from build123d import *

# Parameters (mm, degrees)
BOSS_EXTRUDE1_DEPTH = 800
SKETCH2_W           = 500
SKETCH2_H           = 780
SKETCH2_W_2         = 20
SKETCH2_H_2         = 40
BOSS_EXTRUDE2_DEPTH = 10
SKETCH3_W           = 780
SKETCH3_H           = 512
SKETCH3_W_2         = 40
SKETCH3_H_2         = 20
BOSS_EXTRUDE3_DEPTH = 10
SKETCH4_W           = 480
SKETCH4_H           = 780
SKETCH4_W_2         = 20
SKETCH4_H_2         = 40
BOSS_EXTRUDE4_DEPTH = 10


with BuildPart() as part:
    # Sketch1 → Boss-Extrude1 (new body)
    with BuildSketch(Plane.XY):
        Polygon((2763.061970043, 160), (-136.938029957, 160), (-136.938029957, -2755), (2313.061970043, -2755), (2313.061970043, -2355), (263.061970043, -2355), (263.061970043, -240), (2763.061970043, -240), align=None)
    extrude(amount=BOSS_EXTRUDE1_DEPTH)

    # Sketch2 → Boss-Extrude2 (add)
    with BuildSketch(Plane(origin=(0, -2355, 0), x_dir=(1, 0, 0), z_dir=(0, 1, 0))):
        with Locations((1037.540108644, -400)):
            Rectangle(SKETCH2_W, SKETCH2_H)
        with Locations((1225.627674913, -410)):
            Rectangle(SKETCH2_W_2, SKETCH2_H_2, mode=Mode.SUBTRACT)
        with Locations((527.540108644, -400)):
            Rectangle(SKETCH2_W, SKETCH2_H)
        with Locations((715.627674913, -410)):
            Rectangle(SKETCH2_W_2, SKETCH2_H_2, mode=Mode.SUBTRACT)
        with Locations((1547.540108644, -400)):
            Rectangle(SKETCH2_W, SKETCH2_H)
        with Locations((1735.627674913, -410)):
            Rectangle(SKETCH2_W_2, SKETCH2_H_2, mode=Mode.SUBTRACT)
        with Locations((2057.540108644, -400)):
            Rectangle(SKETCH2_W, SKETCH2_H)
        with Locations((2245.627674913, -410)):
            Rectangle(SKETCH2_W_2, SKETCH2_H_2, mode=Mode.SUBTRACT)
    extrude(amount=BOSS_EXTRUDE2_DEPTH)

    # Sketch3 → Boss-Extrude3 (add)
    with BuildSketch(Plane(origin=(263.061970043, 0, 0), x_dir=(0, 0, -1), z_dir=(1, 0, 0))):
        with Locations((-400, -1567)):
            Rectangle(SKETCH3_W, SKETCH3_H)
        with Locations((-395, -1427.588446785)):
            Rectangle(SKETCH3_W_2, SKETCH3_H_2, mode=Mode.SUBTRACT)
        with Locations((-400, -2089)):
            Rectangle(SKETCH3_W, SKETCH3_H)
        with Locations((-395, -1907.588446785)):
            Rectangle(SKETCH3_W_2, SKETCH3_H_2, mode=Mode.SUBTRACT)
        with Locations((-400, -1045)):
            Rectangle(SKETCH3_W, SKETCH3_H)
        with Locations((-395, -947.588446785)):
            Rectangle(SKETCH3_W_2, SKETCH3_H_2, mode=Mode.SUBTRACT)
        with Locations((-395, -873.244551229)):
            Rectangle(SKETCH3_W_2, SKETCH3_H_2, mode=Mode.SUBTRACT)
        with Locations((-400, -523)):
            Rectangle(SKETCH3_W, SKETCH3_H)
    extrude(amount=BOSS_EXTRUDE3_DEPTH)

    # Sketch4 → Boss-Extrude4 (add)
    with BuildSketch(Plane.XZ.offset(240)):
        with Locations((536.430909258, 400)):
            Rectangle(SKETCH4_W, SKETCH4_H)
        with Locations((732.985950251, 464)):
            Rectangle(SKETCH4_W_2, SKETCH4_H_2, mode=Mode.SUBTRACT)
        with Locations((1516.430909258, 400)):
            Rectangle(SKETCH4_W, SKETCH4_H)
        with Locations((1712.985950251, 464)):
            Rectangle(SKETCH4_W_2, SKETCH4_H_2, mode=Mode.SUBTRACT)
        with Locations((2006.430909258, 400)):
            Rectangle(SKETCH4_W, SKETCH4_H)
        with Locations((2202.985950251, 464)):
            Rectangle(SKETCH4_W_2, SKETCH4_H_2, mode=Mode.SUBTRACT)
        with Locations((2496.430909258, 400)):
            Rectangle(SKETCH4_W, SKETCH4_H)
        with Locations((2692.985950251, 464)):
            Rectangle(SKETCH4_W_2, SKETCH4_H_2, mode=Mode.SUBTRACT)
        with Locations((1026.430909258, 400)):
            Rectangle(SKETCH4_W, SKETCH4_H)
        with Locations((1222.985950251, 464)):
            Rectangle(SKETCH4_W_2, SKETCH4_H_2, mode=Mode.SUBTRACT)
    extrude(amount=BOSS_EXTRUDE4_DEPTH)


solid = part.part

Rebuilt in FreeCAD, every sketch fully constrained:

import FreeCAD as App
import Part
import Sketcher
Q = App.Units.Quantity

doc = App.newDocument("Part")
params = doc.addObject("Spreadsheet::Sheet", "Params")
for row, (alias, value) in enumerate([
    ("sketch1_width", "2900 mm"),
    ("sketch1_width2", "2450 mm"),
    ("sketch1_width3", "2050 mm"),
    ("sketch1_height", "2915 mm"),
    ("sketch1_height2", "400 mm"),
    ("pad1_length", "800 mm"),
    ("sketch2_width", "500 mm"),
    ("sketch2_width2", "20 mm"),
    ("sketch2_height", "780 mm"),
    ("sketch2_height2", "40 mm"),
    ("pad2_length", "10 mm"),
    ("sketch3_width", "512 mm"),
    ("sketch3_width2", "20 mm"),
    ("sketch3_height", "780 mm"),
    ("sketch3_height2", "40 mm"),
    ("pad3_length", "10 mm"),
    ("sketch4_width", "480 mm"),
    ("sketch4_width2", "20 mm"),
    ("sketch4_height", "780 mm"),
    ("sketch4_height2", "40 mm"),
    ("pad4_length", "10 mm"),
], start=1):
    params.set(f"A{row}", alias)
    params.set(f"B{row}", "=" + value)
    params.setAlias(f"B{row}", alias)

body = doc.addObject("PartDesign::Body", "Body")

# Sketch on XY plane
sketch1 = body.newObject("Sketcher::SketchObject", "Sketch")
sketch1.AttachmentSupport = (doc.getObject("XY_Plane"), [""])
sketch1.MapMode = "FlatFace"
sketch1.addGeometry(Part.LineSegment(App.Vector(2763, 160, 0), App.Vector(-137, 160, 0)), False)
sketch1.addGeometry(Part.LineSegment(App.Vector(-137, 160, 0), App.Vector(-137, -2755, 0)), False)
sketch1.addGeometry(Part.LineSegment(App.Vector(-137, -2755, 0), App.Vector(2313, -2755, 0)), False)
sketch1.addGeometry(Part.LineSegment(App.Vector(2313, -2755, 0), App.Vector(2313, -2355, 0)), False)
sketch1.addGeometry(Part.LineSegment(App.Vector(2313, -2355, 0), App.Vector(263, -2355, 0)), False)
sketch1.addGeometry(Part.LineSegment(App.Vector(263, -2355, 0), App.Vector(263, -240, 0)), False)
sketch1.addGeometry(Part.LineSegment(App.Vector(263, -240, 0), App.Vector(2763, -240, 0)), False)
sketch1.addGeometry(Part.LineSegment(App.Vector(2763, -240, 0), App.Vector(2763, 160, 0)), False)
sketch1.addConstraint(Sketcher.Constraint("Coincident", 0, 2, 1, 1))
sketch1.addConstraint(Sketcher.Constraint("Coincident", 1, 2, 2, 1))
sketch1.addConstraint(Sketcher.Constraint("Coincident", 2, 2, 3, 1))
sketch1.addConstraint(Sketcher.Constraint("Coincident", 3, 2, 4, 1))
sketch1.addConstraint(Sketcher.Constraint("Coincident", 4, 2, 5, 1))
sketch1.addConstraint(Sketcher.Constraint("Coincident", 5, 2, 6, 1))
sketch1.addConstraint(Sketcher.Constraint("Coincident", 6, 2, 7, 1))
sketch1.addConstraint(Sketcher.Constraint("Coincident", 7, 2, 0, 1))
sketch1.addConstraint(Sketcher.Constraint("Horizontal", 0))
sketch1.addConstraint(Sketcher.Constraint("Vertical", 1))
sketch1.addConstraint(Sketcher.Constraint("Horizontal", 2))
sketch1.addConstraint(Sketcher.Constraint("Vertical", 3))
sketch1.addConstraint(Sketcher.Constraint("Horizontal", 4))
sketch1.addConstraint(Sketcher.Constraint("Vertical", 5))
sketch1.addConstraint(Sketcher.Constraint("Horizontal", 6))
sketch1.addConstraint(Sketcher.Constraint("Vertical", 7))
sketch1.addConstraint(Sketcher.Constraint("Equal", 3, 7))
sketch1.addConstraint(Sketcher.Constraint("DistanceX", 0, 2, 0, 1, Q("2900 mm")))
sketch1.addConstraint(Sketcher.Constraint("DistanceX", 2, 1, 2, 2, Q("2450 mm")))
sketch1.addConstraint(Sketcher.Constraint("DistanceX", 4, 2, 4, 1, Q("2050 mm")))
sketch1.addConstraint(Sketcher.Constraint("DistanceY", 1, 2, 1, 1, Q("2915 mm")))
sketch1.addConstraint(Sketcher.Constraint("DistanceY", 3, 1, 3, 2, Q("400 mm")))
sketch1.addConstraint(Sketcher.Constraint("DistanceY", -1, 1, 0, 2, Q("160 mm")))
sketch1.addConstraint(Sketcher.Constraint("DistanceX", 0, 2, -1, 1, Q("136.93803 mm")))
sketch1.setExpression("Constraints[17]", "Params.sketch1_width")
sketch1.setExpression("Constraints[18]", "Params.sketch1_width2")
sketch1.setExpression("Constraints[19]", "Params.sketch1_width3")
sketch1.setExpression("Constraints[20]", "Params.sketch1_height")
sketch1.setExpression("Constraints[21]", "Params.sketch1_height2")
pad1 = body.newObject("PartDesign::Pad", "Pad")
pad1.Profile = sketch1
pad1.setExpression("Length", "Params.pad1_length")

# Sketch on XZ plane
sketch2 = body.newObject("Sketcher::SketchObject", "Sketch001")
sketch2.AttachmentSupport = (doc.getObject("XZ_Plane"), [""])
sketch2.MapMode = "FlatFace"
sketch2.AttachmentOffset = App.Placement(App.Vector(0, 0, 2355), App.Rotation())
sketch2.addGeometry(Part.LineSegment(App.Vector(788, 10, 0), App.Vector(788, 790, 0)), False)
sketch2.addGeometry(Part.LineSegment(App.Vector(788, 790, 0), App.Vector(1288, 790, 0)), False)
sketch2.addGeometry(Part.LineSegment(App.Vector(1288, 790, 0), App.Vector(1288, 10, 0)), False)
sketch2.addGeometry(Part.LineSegment(App.Vector(1288, 10, 0), App.Vector(788, 10, 0)), False)
sketch2.addGeometry(Part.LineSegment(App.Vector(1236, 430, 0), App.Vector(1216, 430, 0)), False)
sketch2.addGeometry(Part.LineSegment(App.Vector(1216, 430, 0), App.Vector(1216, 390, 0)), False)
sketch2.addGeometry(Part.LineSegment(App.Vector(1216, 390, 0), App.Vector(1236, 390, 0)), False)
sketch2.addGeometry(Part.LineSegment(App.Vector(1236, 390, 0), App.Vector(1236, 430, 0)), False)
sketch2.addGeometry(Part.LineSegment(App.Vector(278, 10, 0), App.Vector(278, 790, 0)), False)
sketch2.addGeometry(Part.LineSegment(App.Vector(278, 790, 0), App.Vector(778, 790, 0)), False)
sketch2.addGeometry(Part.LineSegment(App.Vector(778, 790, 0), App.Vector(778, 10, 0)), False)
sketch2.addGeometry(Part.LineSegment(App.Vector(778, 10, 0), App.Vector(278, 10, 0)), False)
sketch2.addGeometry(Part.LineSegment(App.Vector(726, 430, 0), App.Vector(706, 430, 0)), False)
sketch2.addGeometry(Part.LineSegment(App.Vector(706, 430, 0), App.Vector(706, 390, 0)), False)
sketch2.addGeometry(Part.LineSegment(App.Vector(706, 390, 0), App.Vector(726, 390, 0)), False)
sketch2.addGeometry(Part.LineSegment(App.Vector(726, 390, 0), App.Vector(726, 430, 0)), False)
sketch2.addGeometry(Part.LineSegment(App.Vector(1298, 10, 0), App.Vector(1298, 790, 0)), False)
sketch2.addGeometry(Part.LineSegment(App.Vector(1298, 790, 0), App.Vector(1798, 790, 0)), False)
sketch2.addGeometry(Part.LineSegment(App.Vector(1798, 790, 0), App.Vector(1798, 10, 0)), False)
sketch2.addGeometry(Part.LineSegment(App.Vector(1798, 10, 0), App.Vector(1298, 10, 0)), False)
sketch2.addGeometry(Part.LineSegment(App.Vector(1746, 430, 0), App.Vector(1726, 430, 0)), False)
sketch2.addGeometry(Part.LineSegment(App.Vector(1726, 430, 0), App.Vector(1726, 390, 0)), False)
sketch2.addGeometry(Part.LineSegment(App.Vector(1726, 390, 0), App.Vector(1746, 390, 0)), False)
sketch2.addGeometry(Part.LineSegment(App.Vector(1746, 390, 0), App.Vector(1746, 430, 0)), False)
sketch2.addGeometry(Part.LineSegment(App.Vector(1808, 10, 0), App.Vector(1808, 790, 0)), False)
sketch2.addGeometry(Part.LineSegment(App.Vector(1808, 790, 0), App.Vector(2308, 790, 0)), False)
sketch2.addGeometry(Part.LineSegment(App.Vector(2308, 790, 0), App.Vector(2308, 10, 0)), False)
sketch2.addGeometry(Part.LineSegment(App.Vector(2308, 10, 0), App.Vector(1808, 10, 0)), False)
sketch2.addGeometry(Part.LineSegment(App.Vector(2256, 430, 0), App.Vector(2236, 430, 0)), False)
sketch2.addGeometry(Part.LineSegment(App.Vector(2236, 430, 0), App.Vector(2236, 390, 0)), False)
sketch2.addGeometry(Part.LineSegment(App.Vector(2236, 390, 0), App.Vector(2256, 390, 0)), False)
sketch2.addGeometry(Part.LineSegment(App.Vector(2256, 390, 0), App.Vector(2256, 430, 0)), False)
sketch2.addConstraint(Sketcher.Constraint("Coincident", 0, 2, 1, 1))
sketch2.addConstraint(Sketcher.Constraint("Coincident", 1, 2, 2, 1))
sketch2.addConstraint(Sketcher.Constraint("Coincident", 2, 2, 3, 1))
sketch2.addConstraint(Sketcher.Constraint("Coincident", 3, 2, 0, 1))
sketch2.addConstraint(Sketcher.Constraint("Coincident", 4, 2, 5, 1))
sketch2.addConstraint(Sketcher.Constraint("Coincident", 5, 2, 6, 1))
sketch2.addConstraint(Sketcher.Constraint("Coincident", 6, 2, 7, 1))
sketch2.addConstraint(Sketcher.Constraint("Coincident", 7, 2, 4, 1))
sketch2.addConstraint(Sketcher.Constraint("Coincident", 8, 2, 9, 1))
sketch2.addConstraint(Sketcher.Constraint("Coincident", 9, 2, 10, 1))
sketch2.addConstraint(Sketcher.Constraint("Coincident", 10, 2, 11, 1))
sketch2.addConstraint(Sketcher.Constraint("Coincident", 11, 2, 8, 1))
sketch2.addConstraint(Sketcher.Constraint("Coincident", 12, 2, 13, 1))
sketch2.addConstraint(Sketcher.Constraint("Coincident", 13, 2, 14, 1))
sketch2.addConstraint(Sketcher.Constraint("Coincident", 14, 2, 15, 1))
sketch2.addConstraint(Sketcher.Constraint("Coincident", 15, 2, 12, 1))
sketch2.addConstraint(Sketcher.Constraint("Coincident", 16, 2, 17, 1))
sketch2.addConstraint(Sketcher.Constraint("Coincident", 17, 2, 18, 1))
sketch2.addConstraint(Sketcher.Constraint("Coincident", 18, 2, 19, 1))
sketch2.addConstraint(Sketcher.Constraint("Coincident", 19, 2, 16, 1))
sketch2.addConstraint(Sketcher.Constraint("Coincident", 20, 2, 21, 1))
sketch2.addConstraint(Sketcher.Constraint("Coincident", 21, 2, 22, 1))
sketch2.addConstraint(Sketcher.Constraint("Coincident", 22, 2, 23, 1))
sketch2.addConstraint(Sketcher.Constraint("Coincident", 23, 2, 20, 1))
sketch2.addConstraint(Sketcher.Constraint("Coincident", 24, 2, 25, 1))
sketch2.addConstraint(Sketcher.Constraint("Coincident", 25, 2, 26, 1))
sketch2.addConstraint(Sketcher.Constraint("Coincident", 26, 2, 27, 1))
sketch2.addConstraint(Sketcher.Constraint("Coincident", 27, 2, 24, 1))
sketch2.addConstraint(Sketcher.Constraint("Coincident", 28, 2, 29, 1))
sketch2.addConstraint(Sketcher.Constraint("Coincident", 29, 2, 30, 1))
sketch2.addConstraint(Sketcher.Constraint("Coincident", 30, 2, 31, 1))
sketch2.addConstraint(Sketcher.Constraint("Coincident", 31, 2, 28, 1))
sketch2.addConstraint(Sketcher.Constraint("Vertical", 0))
sketch2.addConstraint(Sketcher.Constraint("Horizontal", 1))
sketch2.addConstraint(Sketcher.Constraint("Vertical", 2))
sketch2.addConstraint(Sketcher.Constraint("Horizontal", 3))
sketch2.addConstraint(Sketcher.Constraint("Horizontal", 4))
sketch2.addConstraint(Sketcher.Constraint("Vertical", 5))
sketch2.addConstraint(Sketcher.Constraint("Horizontal", 6))
sketch2.addConstraint(Sketcher.Constraint("Vertical", 7))
sketch2.addConstraint(Sketcher.Constraint("Vertical", 8))
sketch2.addConstraint(Sketcher.Constraint("Horizontal", 9))
sketch2.addConstraint(Sketcher.Constraint("Vertical", 10))
sketch2.addConstraint(Sketcher.Constraint("Horizontal", 11))
sketch2.addConstraint(Sketcher.Constraint("Horizontal", 12))
sketch2.addConstraint(Sketcher.Constraint("Vertical", 13))
sketch2.addConstraint(Sketcher.Constraint("Horizontal", 14))
sketch2.addConstraint(Sketcher.Constraint("Vertical", 15))
sketch2.addConstraint(Sketcher.Constraint("Vertical", 16))
sketch2.addConstraint(Sketcher.Constraint("Horizontal", 17))
sketch2.addConstraint(Sketcher.Constraint("Vertical", 18))
sketch2.addConstraint(Sketcher.Constraint("Horizontal", 19))
sketch2.addConstraint(Sketcher.Constraint("Horizontal", 20))
sketch2.addConstraint(Sketcher.Constraint("Vertical", 21))
sketch2.addConstraint(Sketcher.Constraint("Horizontal", 22))
sketch2.addConstraint(Sketcher.Constraint("Vertical", 23))
sketch2.addConstraint(Sketcher.Constraint("Vertical", 24))
sketch2.addConstraint(Sketcher.Constraint("Horizontal", 25))
sketch2.addConstraint(Sketcher.Constraint("Vertical", 26))
sketch2.addConstraint(Sketcher.Constraint("Horizontal", 27))
sketch2.addConstraint(Sketcher.Constraint("Horizontal", 28))
sketch2.addConstraint(Sketcher.Constraint("Vertical", 29))
sketch2.addConstraint(Sketcher.Constraint("Horizontal", 30))
sketch2.addConstraint(Sketcher.Constraint("Vertical", 31))
sketch2.addConstraint(Sketcher.Constraint("Horizontal", 1, 2, 8, 2))
sketch2.addConstraint(Sketcher.Constraint("Horizontal", 3, 2, 10, 2))
sketch2.addConstraint(Sketcher.Constraint("Horizontal", 7, 2, 12, 2))
sketch2.addConstraint(Sketcher.Constraint("Horizontal", 6, 2, 13, 2))
sketch2.addConstraint(Sketcher.Constraint("Horizontal", 9, 2, 16, 2))
sketch2.addConstraint(Sketcher.Constraint("Horizontal", 11, 2, 18, 2))
sketch2.addConstraint(Sketcher.Constraint("Horizontal", 15, 2, 20, 2))
sketch2.addConstraint(Sketcher.Constraint("Horizontal", 14, 2, 21, 2))
sketch2.addConstraint(Sketcher.Constraint("Horizontal", 17, 2, 24, 2))
sketch2.addConstraint(Sketcher.Constraint("Horizontal", 19, 2, 26, 2))
sketch2.addConstraint(Sketcher.Constraint("Horizontal", 23, 2, 28, 2))
sketch2.addConstraint(Sketcher.Constraint("Horizontal", 22, 2, 29, 2))
sketch2.addConstraint(Sketcher.Constraint("Equal", 3, 9))
sketch2.addConstraint(Sketcher.Constraint("Equal", 6, 12))
sketch2.addConstraint(Sketcher.Constraint("Equal", 11, 17))
sketch2.addConstraint(Sketcher.Constraint("Equal", 14, 20))
sketch2.addConstraint(Sketcher.Constraint("Equal", 19, 25))
sketch2.addConstraint(Sketcher.Constraint("Equal", 22, 28))
sketch2.addConstraint(Sketcher.Constraint("DistanceX", 1, 1, 1, 2, Q("500 mm")))
sketch2.addConstraint(Sketcher.Constraint("DistanceX", 4, 2, 4, 1, Q("20 mm")))
sketch2.addConstraint(Sketcher.Constraint("DistanceY", 0, 1, 0, 2, Q("780 mm")))
sketch2.addConstraint(Sketcher.Constraint("DistanceY", 5, 2, 5, 1, Q("40 mm")))
sketch2.addConstraint(Sketcher.Constraint("DistanceY", -1, 1, 0, 2, Q("790 mm")))
sketch2.addConstraint(Sketcher.Constraint("DistanceY", -1, 1, 4, 2, Q("430 mm")))
sketch2.addConstraint(Sketcher.Constraint("DistanceX", 8, 2, 0, 2, Q("510 mm")))
sketch2.addConstraint(Sketcher.Constraint("DistanceX", 12, 2, 4, 2, Q("510 mm")))
sketch2.addConstraint(Sketcher.Constraint("DistanceX", 1, 2, 16, 2, Q("10 mm")))
sketch2.addConstraint(Sketcher.Constraint("DistanceX", 7, 2, 20, 2, Q("490 mm")))
sketch2.addConstraint(Sketcher.Constraint("DistanceX", 17, 2, 24, 2, Q("10 mm")))
sketch2.addConstraint(Sketcher.Constraint("DistanceX", 23, 2, 28, 2, Q("490 mm")))
sketch2.addConstraint(Sketcher.Constraint("DistanceX", -1, 1, 0, 2, Q("787.540109 mm")))
sketch2.addConstraint(Sketcher.Constraint("DistanceX", -1, 1, 4, 2, Q("1215.627675 mm")))
sketch2.setExpression("Constraints[82]", "Params.sketch2_width")
sketch2.setExpression("Constraints[83]", "Params.sketch2_width2")
sketch2.setExpression("Constraints[84]", "Params.sketch2_height")
sketch2.setExpression("Constraints[85]", "Params.sketch2_height2")
pad2 = body.newObject("PartDesign::Pad", "Pad001")
pad2.Profile = sketch2
pad2.setExpression("Length", "Params.pad2_length")
pad2.Reversed = True

# Sketch on YZ plane
sketch3 = body.newObject("Sketcher::SketchObject", "Sketch002")
sketch3.AttachmentSupport = (doc.getObject("YZ_Plane"), [""])
sketch3.MapMode = "FlatFace"
sketch3.AttachmentOffset = App.Placement(App.Vector(0, 0, 263.06197), App.Rotation())
sketch3.addGeometry(Part.LineSegment(App.Vector(-1311, 790, 0), App.Vector(-1823, 790, 0)), False)
sketch3.addGeometry(Part.LineSegment(App.Vector(-1823, 790, 0), App.Vector(-1823, 10, 0)), False)
sketch3.addGeometry(Part.LineSegment(App.Vector(-1823, 10, 0), App.Vector(-1311, 10, 0)), False)
sketch3.addGeometry(Part.LineSegment(App.Vector(-1311, 10, 0), App.Vector(-1311, 790, 0)), False)
sketch3.addGeometry(Part.LineSegment(App.Vector(-1438, 375, 0), App.Vector(-1438, 415, 0)), False)
sketch3.addGeometry(Part.LineSegment(App.Vector(-1438, 415, 0), App.Vector(-1418, 415, 0)), False)
sketch3.addGeometry(Part.LineSegment(App.Vector(-1418, 415, 0), App.Vector(-1418, 375, 0)), False)
sketch3.addGeometry(Part.LineSegment(App.Vector(-1418, 375, 0), App.Vector(-1438, 375, 0)), False)
sketch3.addGeometry(Part.LineSegment(App.Vector(-1833, 790, 0), App.Vector(-2345, 790, 0)), False)
sketch3.addGeometry(Part.LineSegment(App.Vector(-2345, 790, 0), App.Vector(-2345, 10, 0)), False)
sketch3.addGeometry(Part.LineSegment(App.Vector(-2345, 10, 0), App.Vector(-1833, 10, 0)), False)
sketch3.addGeometry(Part.LineSegment(App.Vector(-1833, 10, 0), App.Vector(-1833, 790, 0)), False)
sketch3.addGeometry(Part.LineSegment(App.Vector(-1918, 375, 0), App.Vector(-1918, 415, 0)), False)
sketch3.addGeometry(Part.LineSegment(App.Vector(-1918, 415, 0), App.Vector(-1898, 415, 0)), False)
sketch3.addGeometry(Part.LineSegment(App.Vector(-1898, 415, 0), App.Vector(-1898, 375, 0)), False)
sketch3.addGeometry(Part.LineSegment(App.Vector(-1898, 375, 0), App.Vector(-1918, 375, 0)), False)
sketch3.addGeometry(Part.LineSegment(App.Vector(-789, 790, 0), App.Vector(-1301, 790, 0)), False)
sketch3.addGeometry(Part.LineSegment(App.Vector(-1301, 790, 0), App.Vector(-1301, 10, 0)), False)
sketch3.addGeometry(Part.LineSegment(App.Vector(-1301, 10, 0), App.Vector(-789, 10, 0)), False)
sketch3.addGeometry(Part.LineSegment(App.Vector(-789, 10, 0), App.Vector(-789, 790, 0)), False)
sketch3.addGeometry(Part.LineSegment(App.Vector(-958, 375, 0), App.Vector(-958, 415, 0)), False)
sketch3.addGeometry(Part.LineSegment(App.Vector(-958, 415, 0), App.Vector(-938, 415, 0)), False)
sketch3.addGeometry(Part.LineSegment(App.Vector(-938, 415, 0), App.Vector(-938, 375, 0)), False)
sketch3.addGeometry(Part.LineSegment(App.Vector(-938, 375, 0), App.Vector(-958, 375, 0)), False)
sketch3.addGeometry(Part.LineSegment(App.Vector(-883, 375, 0), App.Vector(-883, 415, 0)), False)
sketch3.addGeometry(Part.LineSegment(App.Vector(-883, 415, 0), App.Vector(-863, 415, 0)), False)
sketch3.addGeometry(Part.LineSegment(App.Vector(-863, 415, 0), App.Vector(-863, 375, 0)), False)
sketch3.addGeometry(Part.LineSegment(App.Vector(-863, 375, 0), App.Vector(-883, 375, 0)), False)
sketch3.addGeometry(Part.LineSegment(App.Vector(-267, 790, 0), App.Vector(-779, 790, 0)), False)
sketch3.addGeometry(Part.LineSegment(App.Vector(-779, 790, 0), App.Vector(-779, 10, 0)), False)
sketch3.addGeometry(Part.LineSegment(App.Vector(-779, 10, 0), App.Vector(-267, 10, 0)), False)
sketch3.addGeometry(Part.LineSegment(App.Vector(-267, 10, 0), App.Vector(-267, 790, 0)), False)
sketch3.addConstraint(Sketcher.Constraint("Coincident", 0, 2, 1, 1))
sketch3.addConstraint(Sketcher.Constraint("Coincident", 1, 2, 2, 1))
sketch3.addConstraint(Sketcher.Constraint("Coincident", 2, 2, 3, 1))
sketch3.addConstraint(Sketcher.Constraint("Coincident", 3, 2, 0, 1))
sketch3.addConstraint(Sketcher.Constraint("Coincident", 4, 2, 5, 1))
sketch3.addConstraint(Sketcher.Constraint("Coincident", 5, 2, 6, 1))
sketch3.addConstraint(Sketcher.Constraint("Coincident", 6, 2, 7, 1))
sketch3.addConstraint(Sketcher.Constraint("Coincident", 7, 2, 4, 1))
sketch3.addConstraint(Sketcher.Constraint("Coincident", 8, 2, 9, 1))
sketch3.addConstraint(Sketcher.Constraint("Coincident", 9, 2, 10, 1))
sketch3.addConstraint(Sketcher.Constraint("Coincident", 10, 2, 11, 1))
sketch3.addConstraint(Sketcher.Constraint("Coincident", 11, 2, 8, 1))
sketch3.addConstraint(Sketcher.Constraint("Coincident", 12, 2, 13, 1))
sketch3.addConstraint(Sketcher.Constraint("Coincident", 13, 2, 14, 1))
sketch3.addConstraint(Sketcher.Constraint("Coincident", 14, 2, 15, 1))
sketch3.addConstraint(Sketcher.Constraint("Coincident", 15, 2, 12, 1))
sketch3.addConstraint(Sketcher.Constraint("Coincident", 16, 2, 17, 1))
sketch3.addConstraint(Sketcher.Constraint("Coincident", 17, 2, 18, 1))
sketch3.addConstraint(Sketcher.Constraint("Coincident", 18, 2, 19, 1))
sketch3.addConstraint(Sketcher.Constraint("Coincident", 19, 2, 16, 1))
sketch3.addConstraint(Sketcher.Constraint("Coincident", 20, 2, 21, 1))
sketch3.addConstraint(Sketcher.Constraint("Coincident", 21, 2, 22, 1))
sketch3.addConstraint(Sketcher.Constraint("Coincident", 22, 2, 23, 1))
sketch3.addConstraint(Sketcher.Constraint("Coincident", 23, 2, 20, 1))
sketch3.addConstraint(Sketcher.Constraint("Coincident", 24, 2, 25, 1))
sketch3.addConstraint(Sketcher.Constraint("Coincident", 25, 2, 26, 1))
sketch3.addConstraint(Sketcher.Constraint("Coincident", 26, 2, 27, 1))
sketch3.addConstraint(Sketcher.Constraint("Coincident", 27, 2, 24, 1))
sketch3.addConstraint(Sketcher.Constraint("Coincident", 28, 2, 29, 1))
sketch3.addConstraint(Sketcher.Constraint("Coincident", 29, 2, 30, 1))
sketch3.addConstraint(Sketcher.Constraint("Coincident", 30, 2, 31, 1))
sketch3.addConstraint(Sketcher.Constraint("Coincident", 31, 2, 28, 1))
sketch3.addConstraint(Sketcher.Constraint("Horizontal", 0))
sketch3.addConstraint(Sketcher.Constraint("Vertical", 1))
sketch3.addConstraint(Sketcher.Constraint("Horizontal", 2))
sketch3.addConstraint(Sketcher.Constraint("Vertical", 3))
sketch3.addConstraint(Sketcher.Constraint("Vertical", 4))
sketch3.addConstraint(Sketcher.Constraint("Horizontal", 5))
sketch3.addConstraint(Sketcher.Constraint("Vertical", 6))
sketch3.addConstraint(Sketcher.Constraint("Horizontal", 7))
sketch3.addConstraint(Sketcher.Constraint("Horizontal", 8))
sketch3.addConstraint(Sketcher.Constraint("Vertical", 9))
sketch3.addConstraint(Sketcher.Constraint("Horizontal", 10))
sketch3.addConstraint(Sketcher.Constraint("Vertical", 11))
sketch3.addConstraint(Sketcher.Constraint("Vertical", 12))
sketch3.addConstraint(Sketcher.Constraint("Horizontal", 13))
sketch3.addConstraint(Sketcher.Constraint("Vertical", 14))
sketch3.addConstraint(Sketcher.Constraint("Horizontal", 15))
sketch3.addConstraint(Sketcher.Constraint("Horizontal", 16))
sketch3.addConstraint(Sketcher.Constraint("Vertical", 17))
sketch3.addConstraint(Sketcher.Constraint("Horizontal", 18))
sketch3.addConstraint(Sketcher.Constraint("Vertical", 19))
sketch3.addConstraint(Sketcher.Constraint("Vertical", 20))
sketch3.addConstraint(Sketcher.Constraint("Horizontal", 21))
sketch3.addConstraint(Sketcher.Constraint("Vertical", 22))
sketch3.addConstraint(Sketcher.Constraint("Horizontal", 23))
sketch3.addConstraint(Sketcher.Constraint("Vertical", 24))
sketch3.addConstraint(Sketcher.Constraint("Horizontal", 25))
sketch3.addConstraint(Sketcher.Constraint("Vertical", 26))
sketch3.addConstraint(Sketcher.Constraint("Horizontal", 27))
sketch3.addConstraint(Sketcher.Constraint("Horizontal", 28))
sketch3.addConstraint(Sketcher.Constraint("Vertical", 29))
sketch3.addConstraint(Sketcher.Constraint("Horizontal", 30))
sketch3.addConstraint(Sketcher.Constraint("Vertical", 31))
sketch3.addConstraint(Sketcher.Constraint("Horizontal", 3, 2, 8, 2))
sketch3.addConstraint(Sketcher.Constraint("Horizontal", 2, 2, 9, 2))
sketch3.addConstraint(Sketcher.Constraint("Horizontal", 5, 2, 12, 2))
sketch3.addConstraint(Sketcher.Constraint("Horizontal", 7, 2, 14, 2))
sketch3.addConstraint(Sketcher.Constraint("Horizontal", 11, 2, 16, 2))
sketch3.addConstraint(Sketcher.Constraint("Horizontal", 10, 2, 17, 2))
sketch3.addConstraint(Sketcher.Constraint("Horizontal", 13, 2, 20, 2))
sketch3.addConstraint(Sketcher.Constraint("Horizontal", 15, 2, 22, 2))
sketch3.addConstraint(Sketcher.Constraint("Horizontal", 21, 2, 24, 2))
sketch3.addConstraint(Sketcher.Constraint("Horizontal", 23, 2, 26, 2))
sketch3.addConstraint(Sketcher.Constraint("Horizontal", 19, 2, 28, 2))
sketch3.addConstraint(Sketcher.Constraint("Horizontal", 18, 2, 29, 2))
sketch3.addConstraint(Sketcher.Constraint("Equal", 2, 8))
sketch3.addConstraint(Sketcher.Constraint("Equal", 7, 13))
sketch3.addConstraint(Sketcher.Constraint("Equal", 10, 16))
sketch3.addConstraint(Sketcher.Constraint("Equal", 15, 21))
sketch3.addConstraint(Sketcher.Constraint("Equal", 23, 25))
sketch3.addConstraint(Sketcher.Constraint("Equal", 18, 28))
sketch3.addConstraint(Sketcher.Constraint("DistanceX", 0, 2, 0, 1, Q("512 mm")))
sketch3.addConstraint(Sketcher.Constraint("DistanceX", 5, 1, 5, 2, Q("20 mm")))
sketch3.addConstraint(Sketcher.Constraint("DistanceY", 1, 2, 1, 1, Q("780 mm")))
sketch3.addConstraint(Sketcher.Constraint("DistanceY", 4, 1, 4, 2, Q("40 mm")))
sketch3.addConstraint(Sketcher.Constraint("DistanceX", 0, 2, -1, 1, Q("1823 mm")))
sketch3.addConstraint(Sketcher.Constraint("DistanceY", -1, 1, 0, 2, Q("790 mm")))
sketch3.addConstraint(Sketcher.Constraint("DistanceY", -1, 1, 4, 2, Q("415 mm")))
sketch3.addConstraint(Sketcher.Constraint("DistanceX", 8, 2, -1, 1, Q("2345 mm")))
sketch3.addConstraint(Sketcher.Constraint("DistanceX", 16, 2, -1, 1, Q("1301 mm")))
sketch3.addConstraint(Sketcher.Constraint("DistanceX", 28, 2, -1, 1, Q("779 mm")))
sketch3.addConstraint(Sketcher.Constraint("DistanceX", 12, 2, 4, 2, Q("480 mm")))
sketch3.addConstraint(Sketcher.Constraint("DistanceX", 5, 2, 20, 2, Q("460 mm")))
sketch3.addConstraint(Sketcher.Constraint("DistanceX", 24, 2, -1, 1, Q("883.244551 mm")))
sketch3.addConstraint(Sketcher.Constraint("DistanceX", 4, 2, -1, 1, Q("1437.588447 mm")))
sketch3.setExpression("Constraints[82]", "Params.sketch3_width")
sketch3.setExpression("Constraints[83]", "Params.sketch3_width2")
sketch3.setExpression("Constraints[84]", "Params.sketch3_height")
sketch3.setExpression("Constraints[85]", "Params.sketch3_height2")
pad3 = body.newObject("PartDesign::Pad", "Pad002")
pad3.Profile = sketch3
pad3.setExpression("Length", "Params.pad3_length")

# Sketch on XZ plane
sketch4 = body.newObject("Sketcher::SketchObject", "Sketch003")
sketch4.AttachmentSupport = (doc.getObject("XZ_Plane"), [""])
sketch4.MapMode = "FlatFace"
sketch4.AttachmentOffset = App.Placement(App.Vector(0, 0, 240), App.Rotation())
sketch4.addGeometry(Part.LineSegment(App.Vector(296, 790, 0), App.Vector(296, 10, 0)), False)
sketch4.addGeometry(Part.LineSegment(App.Vector(296, 10, 0), App.Vector(776, 10, 0)), False)
sketch4.addGeometry(Part.LineSegment(App.Vector(776, 10, 0), App.Vector(776, 790, 0)), False)
sketch4.addGeometry(Part.LineSegment(App.Vector(776, 790, 0), App.Vector(296, 790, 0)), False)
sketch4.addGeometry(Part.LineSegment(App.Vector(743, 444, 0), App.Vector(723, 444, 0)), False)
sketch4.addGeometry(Part.LineSegment(App.Vector(723, 444, 0), App.Vector(723, 484, 0)), False)
sketch4.addGeometry(Part.LineSegment(App.Vector(723, 484, 0), App.Vector(743, 484, 0)), False)
sketch4.addGeometry(Part.LineSegment(App.Vector(743, 484, 0), App.Vector(743, 444, 0)), False)
sketch4.addGeometry(Part.LineSegment(App.Vector(1276, 790, 0), App.Vector(1276, 10, 0)), False)
sketch4.addGeometry(Part.LineSegment(App.Vector(1276, 10, 0), App.Vector(1756, 10, 0)), False)
sketch4.addGeometry(Part.LineSegment(App.Vector(1756, 10, 0), App.Vector(1756, 790, 0)), False)
sketch4.addGeometry(Part.LineSegment(App.Vector(1756, 790, 0), App.Vector(1276, 790, 0)), False)
sketch4.addGeometry(Part.LineSegment(App.Vector(1723, 444, 0), App.Vector(1703, 444, 0)), False)
sketch4.addGeometry(Part.LineSegment(App.Vector(1703, 444, 0), App.Vector(1703, 484, 0)), False)
sketch4.addGeometry(Part.LineSegment(App.Vector(1703, 484, 0), App.Vector(1723, 484, 0)), False)
sketch4.addGeometry(Part.LineSegment(App.Vector(1723, 484, 0), App.Vector(1723, 444, 0)), False)
sketch4.addGeometry(Part.LineSegment(App.Vector(1766, 790, 0), App.Vector(1766, 10, 0)), False)
sketch4.addGeometry(Part.LineSegment(App.Vector(1766, 10, 0), App.Vector(2246, 10, 0)), False)
sketch4.addGeometry(Part.LineSegment(App.Vector(2246, 10, 0), App.Vector(2246, 790, 0)), False)
sketch4.addGeometry(Part.LineSegment(App.Vector(2246, 790, 0), App.Vector(1766, 790, 0)), False)
sketch4.addGeometry(Part.LineSegment(App.Vector(2213, 444, 0), App.Vector(2193, 444, 0)), False)
sketch4.addGeometry(Part.LineSegment(App.Vector(2193, 444, 0), App.Vector(2193, 484, 0)), False)
sketch4.addGeometry(Part.LineSegment(App.Vector(2193, 484, 0), App.Vector(2213, 484, 0)), False)
sketch4.addGeometry(Part.LineSegment(App.Vector(2213, 484, 0), App.Vector(2213, 444, 0)), False)
sketch4.addGeometry(Part.LineSegment(App.Vector(2256, 790, 0), App.Vector(2256, 10, 0)), False)
sketch4.addGeometry(Part.LineSegment(App.Vector(2256, 10, 0), App.Vector(2736, 10, 0)), False)
sketch4.addGeometry(Part.LineSegment(App.Vector(2736, 10, 0), App.Vector(2736, 790, 0)), False)
sketch4.addGeometry(Part.LineSegment(App.Vector(2736, 790, 0), App.Vector(2256, 790, 0)), False)
sketch4.addGeometry(Part.LineSegment(App.Vector(2703, 444, 0), App.Vector(2683, 444, 0)), False)
sketch4.addGeometry(Part.LineSegment(App.Vector(2683, 444, 0), App.Vector(2683, 484, 0)), False)
sketch4.addGeometry(Part.LineSegment(App.Vector(2683, 484, 0), App.Vector(2703, 484, 0)), False)
sketch4.addGeometry(Part.LineSegment(App.Vector(2703, 484, 0), App.Vector(2703, 444, 0)), False)
sketch4.addGeometry(Part.LineSegment(App.Vector(786, 790, 0), App.Vector(786, 10, 0)), False)
sketch4.addGeometry(Part.LineSegment(App.Vector(786, 10, 0), App.Vector(1266, 10, 0)), False)
sketch4.addGeometry(Part.LineSegment(App.Vector(1266, 10, 0), App.Vector(1266, 790, 0)), False)
sketch4.addGeometry(Part.LineSegment(App.Vector(1266, 790, 0), App.Vector(786, 790, 0)), False)
sketch4.addGeometry(Part.LineSegment(App.Vector(1233, 444, 0), App.Vector(1213, 444, 0)), False)
sketch4.addGeometry(Part.LineSegment(App.Vector(1213, 444, 0), App.Vector(1213, 484, 0)), False)
sketch4.addGeometry(Part.LineSegment(App.Vector(1213, 484, 0), App.Vector(1233, 484, 0)), False)
sketch4.addGeometry(Part.LineSegment(App.Vector(1233, 484, 0), App.Vector(1233, 444, 0)), False)
sketch4.addConstraint(Sketcher.Constraint("Coincident", 0, 2, 1, 1))
sketch4.addConstraint(Sketcher.Constraint("Coincident", 1, 2, 2, 1))
sketch4.addConstraint(Sketcher.Constraint("Coincident", 2, 2, 3, 1))
sketch4.addConstraint(Sketcher.Constraint("Coincident", 3, 2, 0, 1))
sketch4.addConstraint(Sketcher.Constraint("Coincident", 4, 2, 5, 1))
sketch4.addConstraint(Sketcher.Constraint("Coincident", 5, 2, 6, 1))
sketch4.addConstraint(Sketcher.Constraint("Coincident", 6, 2, 7, 1))
sketch4.addConstraint(Sketcher.Constraint("Coincident", 7, 2, 4, 1))
sketch4.addConstraint(Sketcher.Constraint("Coincident", 8, 2, 9, 1))
sketch4.addConstraint(Sketcher.Constraint("Coincident", 9, 2, 10, 1))
sketch4.addConstraint(Sketcher.Constraint("Coincident", 10, 2, 11, 1))
sketch4.addConstraint(Sketcher.Constraint("Coincident", 11, 2, 8, 1))
sketch4.addConstraint(Sketcher.Constraint("Coincident", 12, 2, 13, 1))
sketch4.addConstraint(Sketcher.Constraint("Coincident", 13, 2, 14, 1))
sketch4.addConstraint(Sketcher.Constraint("Coincident", 14, 2, 15, 1))
sketch4.addConstraint(Sketcher.Constraint("Coincident", 15, 2, 12, 1))
sketch4.addConstraint(Sketcher.Constraint("Coincident", 16, 2, 17, 1))
sketch4.addConstraint(Sketcher.Constraint("Coincident", 17, 2, 18, 1))
sketch4.addConstraint(Sketcher.Constraint("Coincident", 18, 2, 19, 1))
sketch4.addConstraint(Sketcher.Constraint("Coincident", 19, 2, 16, 1))
sketch4.addConstraint(Sketcher.Constraint("Coincident", 20, 2, 21, 1))
sketch4.addConstraint(Sketcher.Constraint("Coincident", 21, 2, 22, 1))
sketch4.addConstraint(Sketcher.Constraint("Coincident", 22, 2, 23, 1))
sketch4.addConstraint(Sketcher.Constraint("Coincident", 23, 2, 20, 1))
sketch4.addConstraint(Sketcher.Constraint("Coincident", 24, 2, 25, 1))
sketch4.addConstraint(Sketcher.Constraint("Coincident", 25, 2, 26, 1))
sketch4.addConstraint(Sketcher.Constraint("Coincident", 26, 2, 27, 1))
sketch4.addConstraint(Sketcher.Constraint("Coincident", 27, 2, 24, 1))
sketch4.addConstraint(Sketcher.Constraint("Coincident", 28, 2, 29, 1))
sketch4.addConstraint(Sketcher.Constraint("Coincident", 29, 2, 30, 1))
sketch4.addConstraint(Sketcher.Constraint("Coincident", 30, 2, 31, 1))
sketch4.addConstraint(Sketcher.Constraint("Coincident", 31, 2, 28, 1))
sketch4.addConstraint(Sketcher.Constraint("Coincident", 32, 2, 33, 1))
sketch4.addConstraint(Sketcher.Constraint("Coincident", 33, 2, 34, 1))
sketch4.addConstraint(Sketcher.Constraint("Coincident", 34, 2, 35, 1))
sketch4.addConstraint(Sketcher.Constraint("Coincident", 35, 2, 32, 1))
sketch4.addConstraint(Sketcher.Constraint("Coincident", 36, 2, 37, 1))
sketch4.addConstraint(Sketcher.Constraint("Coincident", 37, 2, 38, 1))
sketch4.addConstraint(Sketcher.Constraint("Coincident", 38, 2, 39, 1))
sketch4.addConstraint(Sketcher.Constraint("Coincident", 39, 2, 36, 1))
sketch4.addConstraint(Sketcher.Constraint("Vertical", 0))
sketch4.addConstraint(Sketcher.Constraint("Horizontal", 1))
sketch4.addConstraint(Sketcher.Constraint("Vertical", 2))
sketch4.addConstraint(Sketcher.Constraint("Horizontal", 3))
sketch4.addConstraint(Sketcher.Constraint("Horizontal", 4))
sketch4.addConstraint(Sketcher.Constraint("Vertical", 5))
sketch4.addConstraint(Sketcher.Constraint("Horizontal", 6))
sketch4.addConstraint(Sketcher.Constraint("Vertical", 7))
sketch4.addConstraint(Sketcher.Constraint("Vertical", 8))
sketch4.addConstraint(Sketcher.Constraint("Horizontal", 9))
sketch4.addConstraint(Sketcher.Constraint("Vertical", 10))
sketch4.addConstraint(Sketcher.Constraint("Horizontal", 11))
sketch4.addConstraint(Sketcher.Constraint("Horizontal", 12))
sketch4.addConstraint(Sketcher.Constraint("Vertical", 13))
sketch4.addConstraint(Sketcher.Constraint("Horizontal", 14))
sketch4.addConstraint(Sketcher.Constraint("Vertical", 15))
sketch4.addConstraint(Sketcher.Constraint("Vertical", 16))
sketch4.addConstraint(Sketcher.Constraint("Horizontal", 17))
sketch4.addConstraint(Sketcher.Constraint("Vertical", 18))
sketch4.addConstraint(Sketcher.Constraint("Horizontal", 19))
sketch4.addConstraint(Sketcher.Constraint("Horizontal", 20))
sketch4.addConstraint(Sketcher.Constraint("Vertical", 21))
sketch4.addConstraint(Sketcher.Constraint("Horizontal", 22))
sketch4.addConstraint(Sketcher.Constraint("Vertical", 23))
sketch4.addConstraint(Sketcher.Constraint("Vertical", 24))
sketch4.addConstraint(Sketcher.Constraint("Horizontal", 25))
sketch4.addConstraint(Sketcher.Constraint("Vertical", 26))
sketch4.addConstraint(Sketcher.Constraint("Horizontal", 27))
sketch4.addConstraint(Sketcher.Constraint("Horizontal", 28))
sketch4.addConstraint(Sketcher.Constraint("Vertical", 29))
sketch4.addConstraint(Sketcher.Constraint("Horizontal", 30))
sketch4.addConstraint(Sketcher.Constraint("Vertical", 31))
sketch4.addConstraint(Sketcher.Constraint("Vertical", 32))
sketch4.addConstraint(Sketcher.Constraint("Horizontal", 33))
sketch4.addConstraint(Sketcher.Constraint("Vertical", 34))
sketch4.addConstraint(Sketcher.Constraint("Horizontal", 35))
sketch4.addConstraint(Sketcher.Constraint("Horizontal", 36))
sketch4.addConstraint(Sketcher.Constraint("Vertical", 37))
sketch4.addConstraint(Sketcher.Constraint("Horizontal", 38))
sketch4.addConstraint(Sketcher.Constraint("Vertical", 39))
sketch4.addConstraint(Sketcher.Constraint("Horizontal", 1, 2, 8, 2))
sketch4.addConstraint(Sketcher.Constraint("Horizontal", 3, 2, 10, 2))
sketch4.addConstraint(Sketcher.Constraint("Horizontal", 7, 2, 12, 2))
sketch4.addConstraint(Sketcher.Constraint("Horizontal", 6, 2, 13, 2))
sketch4.addConstraint(Sketcher.Constraint("Horizontal", 9, 2, 16, 2))
sketch4.addConstraint(Sketcher.Constraint("Horizontal", 11, 2, 18, 2))
sketch4.addConstraint(Sketcher.Constraint("Horizontal", 15, 2, 20, 2))
sketch4.addConstraint(Sketcher.Constraint("Horizontal", 14, 2, 21, 2))
sketch4.addConstraint(Sketcher.Constraint("Horizontal", 17, 2, 24, 2))
sketch4.addConstraint(Sketcher.Constraint("Horizontal", 19, 2, 26, 2))
sketch4.addConstraint(Sketcher.Constraint("Horizontal", 23, 2, 28, 2))
sketch4.addConstraint(Sketcher.Constraint("Horizontal", 22, 2, 29, 2))
sketch4.addConstraint(Sketcher.Constraint("Horizontal", 25, 2, 32, 2))
sketch4.addConstraint(Sketcher.Constraint("Horizontal", 27, 2, 34, 2))
sketch4.addConstraint(Sketcher.Constraint("Horizontal", 31, 2, 36, 2))
sketch4.addConstraint(Sketcher.Constraint("Horizontal", 30, 2, 37, 2))
sketch4.addConstraint(Sketcher.Constraint("Equal", 3, 9))
sketch4.addConstraint(Sketcher.Constraint("Equal", 6, 12))
sketch4.addConstraint(Sketcher.Constraint("Equal", 11, 17))
sketch4.addConstraint(Sketcher.Constraint("Equal", 14, 20))
sketch4.addConstraint(Sketcher.Constraint("Equal", 19, 25))
sketch4.addConstraint(Sketcher.Constraint("Equal", 22, 28))
sketch4.addConstraint(Sketcher.Constraint("Equal", 27, 33))
sketch4.addConstraint(Sketcher.Constraint("Equal", 30, 36))
sketch4.addConstraint(Sketcher.Constraint("DistanceX", 1, 1, 1, 2, Q("480 mm")))
sketch4.addConstraint(Sketcher.Constraint("DistanceX", 4, 2, 4, 1, Q("20 mm")))
sketch4.addConstraint(Sketcher.Constraint("DistanceY", 0, 2, 0, 1, Q("780 mm")))
sketch4.addConstraint(Sketcher.Constraint("DistanceY", 5, 1, 5, 2, Q("40 mm")))
sketch4.addConstraint(Sketcher.Constraint("DistanceY", -1, 1, 0, 2, Q("10 mm")))
sketch4.addConstraint(Sketcher.Constraint("DistanceY", -1, 1, 4, 2, Q("444 mm")))
sketch4.addConstraint(Sketcher.Constraint("DistanceX", 1, 2, 8, 2, Q("500 mm")))
sketch4.addConstraint(Sketcher.Constraint("DistanceX", 7, 2, 12, 2, Q("960 mm")))
sketch4.addConstraint(Sketcher.Constraint("DistanceX", 9, 2, 16, 2, Q("10 mm")))
sketch4.addConstraint(Sketcher.Constraint("DistanceX", 15, 2, 20, 2, Q("470 mm")))
sketch4.addConstraint(Sketcher.Constraint("DistanceX", 17, 2, 24, 2, Q("10 mm")))
sketch4.addConstraint(Sketcher.Constraint("DistanceX", 23, 2, 28, 2, Q("470 mm")))
sketch4.addConstraint(Sketcher.Constraint("DistanceX", 1, 2, 32, 2, Q("10 mm")))
sketch4.addConstraint(Sketcher.Constraint("DistanceX", 7, 2, 36, 2, Q("470 mm")))
sketch4.addConstraint(Sketcher.Constraint("DistanceX", -1, 1, 0, 2, Q("296.430909 mm")))
sketch4.addConstraint(Sketcher.Constraint("DistanceX", -1, 1, 4, 2, Q("722.98595 mm")))
sketch4.setExpression("Constraints[104]", "Params.sketch4_width")
sketch4.setExpression("Constraints[105]", "Params.sketch4_width2")
sketch4.setExpression("Constraints[106]", "Params.sketch4_height")
sketch4.setExpression("Constraints[107]", "Params.sketch4_height2")
pad4 = body.newObject("PartDesign::Pad", "Pad003")
pad4.Profile = sketch4
pad4.setExpression("Length", "Params.pad4_length")

doc.recompute()
